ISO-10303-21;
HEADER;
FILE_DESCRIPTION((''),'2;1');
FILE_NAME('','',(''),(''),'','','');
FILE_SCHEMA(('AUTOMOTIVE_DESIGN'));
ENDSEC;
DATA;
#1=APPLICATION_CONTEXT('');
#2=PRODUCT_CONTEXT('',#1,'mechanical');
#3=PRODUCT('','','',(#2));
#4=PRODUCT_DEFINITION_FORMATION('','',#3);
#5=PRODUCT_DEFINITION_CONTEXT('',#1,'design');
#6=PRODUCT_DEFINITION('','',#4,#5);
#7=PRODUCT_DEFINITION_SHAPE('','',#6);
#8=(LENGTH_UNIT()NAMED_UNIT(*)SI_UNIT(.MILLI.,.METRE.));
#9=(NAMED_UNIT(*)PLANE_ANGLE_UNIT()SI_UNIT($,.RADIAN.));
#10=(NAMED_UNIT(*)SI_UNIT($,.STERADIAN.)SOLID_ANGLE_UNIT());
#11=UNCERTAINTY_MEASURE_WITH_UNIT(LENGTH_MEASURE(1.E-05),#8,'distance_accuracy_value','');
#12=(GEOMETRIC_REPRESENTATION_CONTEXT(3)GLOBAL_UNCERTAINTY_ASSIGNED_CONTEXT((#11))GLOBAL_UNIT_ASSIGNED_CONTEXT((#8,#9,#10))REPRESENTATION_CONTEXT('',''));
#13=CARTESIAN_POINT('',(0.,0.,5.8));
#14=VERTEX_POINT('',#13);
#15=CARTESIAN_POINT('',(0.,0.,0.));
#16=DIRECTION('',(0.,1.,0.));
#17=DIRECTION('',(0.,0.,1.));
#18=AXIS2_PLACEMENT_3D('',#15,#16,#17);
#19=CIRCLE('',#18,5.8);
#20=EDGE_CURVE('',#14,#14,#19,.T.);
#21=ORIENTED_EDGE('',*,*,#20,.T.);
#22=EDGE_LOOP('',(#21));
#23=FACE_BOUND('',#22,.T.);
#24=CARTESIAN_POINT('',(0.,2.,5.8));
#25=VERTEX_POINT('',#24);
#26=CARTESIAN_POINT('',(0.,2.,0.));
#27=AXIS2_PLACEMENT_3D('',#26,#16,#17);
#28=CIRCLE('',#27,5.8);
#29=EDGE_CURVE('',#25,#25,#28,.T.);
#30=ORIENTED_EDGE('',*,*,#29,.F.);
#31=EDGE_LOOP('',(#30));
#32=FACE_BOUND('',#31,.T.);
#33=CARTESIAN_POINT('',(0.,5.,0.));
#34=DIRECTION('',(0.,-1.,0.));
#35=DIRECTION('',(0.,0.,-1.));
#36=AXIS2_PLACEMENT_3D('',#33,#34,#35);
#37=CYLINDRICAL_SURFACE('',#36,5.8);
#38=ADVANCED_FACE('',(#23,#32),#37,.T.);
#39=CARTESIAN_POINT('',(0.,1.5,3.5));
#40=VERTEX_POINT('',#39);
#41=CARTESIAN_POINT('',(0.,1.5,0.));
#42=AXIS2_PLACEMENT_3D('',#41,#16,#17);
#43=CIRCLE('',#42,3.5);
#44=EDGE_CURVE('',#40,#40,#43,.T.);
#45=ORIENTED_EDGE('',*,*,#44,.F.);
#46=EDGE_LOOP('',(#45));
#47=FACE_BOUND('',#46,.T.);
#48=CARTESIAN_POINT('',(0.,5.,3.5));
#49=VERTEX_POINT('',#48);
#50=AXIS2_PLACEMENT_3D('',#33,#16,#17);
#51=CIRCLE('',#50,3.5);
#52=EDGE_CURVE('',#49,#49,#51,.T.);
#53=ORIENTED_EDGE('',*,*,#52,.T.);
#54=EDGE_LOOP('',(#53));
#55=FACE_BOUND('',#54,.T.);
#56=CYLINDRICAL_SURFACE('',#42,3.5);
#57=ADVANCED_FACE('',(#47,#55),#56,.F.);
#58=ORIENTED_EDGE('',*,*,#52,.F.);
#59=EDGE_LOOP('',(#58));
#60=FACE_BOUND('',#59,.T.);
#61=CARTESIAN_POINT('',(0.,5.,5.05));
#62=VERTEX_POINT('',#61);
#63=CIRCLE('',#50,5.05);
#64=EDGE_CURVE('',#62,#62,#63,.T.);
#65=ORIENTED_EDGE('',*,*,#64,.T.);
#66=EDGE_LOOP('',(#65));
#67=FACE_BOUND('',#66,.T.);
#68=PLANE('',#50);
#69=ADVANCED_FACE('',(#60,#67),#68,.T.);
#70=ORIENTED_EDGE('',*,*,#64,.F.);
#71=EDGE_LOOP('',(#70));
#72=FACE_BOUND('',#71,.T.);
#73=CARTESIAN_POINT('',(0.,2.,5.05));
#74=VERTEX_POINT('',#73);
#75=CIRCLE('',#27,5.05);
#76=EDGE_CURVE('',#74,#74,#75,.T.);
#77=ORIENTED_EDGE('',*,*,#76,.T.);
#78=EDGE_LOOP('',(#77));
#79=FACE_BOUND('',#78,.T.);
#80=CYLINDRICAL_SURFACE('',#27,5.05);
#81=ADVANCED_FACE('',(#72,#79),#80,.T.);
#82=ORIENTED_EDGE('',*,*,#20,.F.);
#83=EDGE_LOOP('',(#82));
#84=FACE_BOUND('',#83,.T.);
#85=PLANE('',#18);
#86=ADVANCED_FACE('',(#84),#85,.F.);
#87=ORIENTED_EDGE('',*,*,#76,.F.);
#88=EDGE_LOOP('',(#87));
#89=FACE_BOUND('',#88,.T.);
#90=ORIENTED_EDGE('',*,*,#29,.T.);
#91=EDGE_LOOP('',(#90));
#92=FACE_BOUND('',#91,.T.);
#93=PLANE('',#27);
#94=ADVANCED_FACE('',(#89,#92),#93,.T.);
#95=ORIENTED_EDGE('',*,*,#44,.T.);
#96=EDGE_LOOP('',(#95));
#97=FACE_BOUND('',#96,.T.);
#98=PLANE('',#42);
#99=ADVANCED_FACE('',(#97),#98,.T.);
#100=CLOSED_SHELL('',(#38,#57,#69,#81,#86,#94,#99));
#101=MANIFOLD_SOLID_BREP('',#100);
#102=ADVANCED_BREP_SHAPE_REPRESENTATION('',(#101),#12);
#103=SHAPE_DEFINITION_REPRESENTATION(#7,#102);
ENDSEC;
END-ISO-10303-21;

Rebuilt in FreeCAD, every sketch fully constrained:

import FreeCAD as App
import Part
import Sketcher
from FreeCAD import Vector

doc = App.newDocument("Part")
body = doc.addObject("PartDesign::Body", "Body")

sketch1 = doc.addObject("Sketcher::SketchObject", "Sketch")
body.addObject(sketch1)
sketch1.AttachmentSupport = (doc.XZ_Plane, [""])
sketch1.MapMode = "FlatFace"
sketch1.addGeometry(Part.Circle(Vector(0, 0, 0), Vector(0, 0, 1), 6), False)
sketch1.addConstraint(Sketcher.Constraint("Coincident", 0, 3, -1, 1))
sketch1.addConstraint(Sketcher.Constraint("Diameter", 0, 11.6))
pad1 = doc.addObject("PartDesign::Pad", "Pad")
body.addObject(pad1)
pad1.Profile = sketch1
pad1.Length = 5
pad1.Reversed = True

sketch2 = doc.addObject("Sketcher::SketchObject", "Sketch001")
body.addObject(sketch2)
sketch2.AttachmentSupport = (doc.XZ_Plane, [""])
sketch2.MapMode = "FlatFace"
sketch2.AttachmentOffset = App.Placement(Vector(0, 0, -5), App.Rotation())
sketch2.addGeometry(Part.Circle(Vector(0, 0, 0), Vector(0, 0, 1), 3.5), False)
sketch2.addConstraint(Sketcher.Constraint("Coincident", 0, 3, -1, 1))
sketch2.addConstraint(Sketcher.Constraint("Diameter", 0, 7.0))
pocket1 = doc.addObject("PartDesign::Pocket", "Pocket")
body.addObject(pocket1)
pocket1.Profile = sketch2
pocket1.Length = 3.5
pocket1.Reversed = True

sketch3 = doc.addObject("Sketcher::SketchObject", "Sketch002")
body.addObject(sketch3)
sketch3.AttachmentSupport = (doc.XZ_Plane, [""])
sketch3.MapMode = "FlatFace"
sketch3.AttachmentOffset = App.Placement(Vector(0, 0, -5), App.Rotation())
sketch3.addGeometry(Part.Circle(Vector(0, 0, 0), Vector(0, 0, 1), 8), False)
sketch3.addGeometry(Part.Circle(Vector(0, 0, 0), Vector(0, 0, 1), 5), False)
sketch3.addConstraint(Sketcher.Constraint("Coincident", 0, 3, -1, 1))
sketch3.addConstraint(Sketcher.Constraint("Coincident", 1, 3, -1, 1))
sketch3.addConstraint(Sketcher.Constraint("Diameter", 1, 10.1))
sketch3.addConstraint(Sketcher.Constraint("Diameter", 0, 16.551277))
pocket2 = doc.addObject("PartDesign::Pocket", "Pocket001")
body.addObject(pocket2)
pocket2.Profile = sketch3
pocket2.Length = 3
pocket2.Reversed = True

doc.recompute()
